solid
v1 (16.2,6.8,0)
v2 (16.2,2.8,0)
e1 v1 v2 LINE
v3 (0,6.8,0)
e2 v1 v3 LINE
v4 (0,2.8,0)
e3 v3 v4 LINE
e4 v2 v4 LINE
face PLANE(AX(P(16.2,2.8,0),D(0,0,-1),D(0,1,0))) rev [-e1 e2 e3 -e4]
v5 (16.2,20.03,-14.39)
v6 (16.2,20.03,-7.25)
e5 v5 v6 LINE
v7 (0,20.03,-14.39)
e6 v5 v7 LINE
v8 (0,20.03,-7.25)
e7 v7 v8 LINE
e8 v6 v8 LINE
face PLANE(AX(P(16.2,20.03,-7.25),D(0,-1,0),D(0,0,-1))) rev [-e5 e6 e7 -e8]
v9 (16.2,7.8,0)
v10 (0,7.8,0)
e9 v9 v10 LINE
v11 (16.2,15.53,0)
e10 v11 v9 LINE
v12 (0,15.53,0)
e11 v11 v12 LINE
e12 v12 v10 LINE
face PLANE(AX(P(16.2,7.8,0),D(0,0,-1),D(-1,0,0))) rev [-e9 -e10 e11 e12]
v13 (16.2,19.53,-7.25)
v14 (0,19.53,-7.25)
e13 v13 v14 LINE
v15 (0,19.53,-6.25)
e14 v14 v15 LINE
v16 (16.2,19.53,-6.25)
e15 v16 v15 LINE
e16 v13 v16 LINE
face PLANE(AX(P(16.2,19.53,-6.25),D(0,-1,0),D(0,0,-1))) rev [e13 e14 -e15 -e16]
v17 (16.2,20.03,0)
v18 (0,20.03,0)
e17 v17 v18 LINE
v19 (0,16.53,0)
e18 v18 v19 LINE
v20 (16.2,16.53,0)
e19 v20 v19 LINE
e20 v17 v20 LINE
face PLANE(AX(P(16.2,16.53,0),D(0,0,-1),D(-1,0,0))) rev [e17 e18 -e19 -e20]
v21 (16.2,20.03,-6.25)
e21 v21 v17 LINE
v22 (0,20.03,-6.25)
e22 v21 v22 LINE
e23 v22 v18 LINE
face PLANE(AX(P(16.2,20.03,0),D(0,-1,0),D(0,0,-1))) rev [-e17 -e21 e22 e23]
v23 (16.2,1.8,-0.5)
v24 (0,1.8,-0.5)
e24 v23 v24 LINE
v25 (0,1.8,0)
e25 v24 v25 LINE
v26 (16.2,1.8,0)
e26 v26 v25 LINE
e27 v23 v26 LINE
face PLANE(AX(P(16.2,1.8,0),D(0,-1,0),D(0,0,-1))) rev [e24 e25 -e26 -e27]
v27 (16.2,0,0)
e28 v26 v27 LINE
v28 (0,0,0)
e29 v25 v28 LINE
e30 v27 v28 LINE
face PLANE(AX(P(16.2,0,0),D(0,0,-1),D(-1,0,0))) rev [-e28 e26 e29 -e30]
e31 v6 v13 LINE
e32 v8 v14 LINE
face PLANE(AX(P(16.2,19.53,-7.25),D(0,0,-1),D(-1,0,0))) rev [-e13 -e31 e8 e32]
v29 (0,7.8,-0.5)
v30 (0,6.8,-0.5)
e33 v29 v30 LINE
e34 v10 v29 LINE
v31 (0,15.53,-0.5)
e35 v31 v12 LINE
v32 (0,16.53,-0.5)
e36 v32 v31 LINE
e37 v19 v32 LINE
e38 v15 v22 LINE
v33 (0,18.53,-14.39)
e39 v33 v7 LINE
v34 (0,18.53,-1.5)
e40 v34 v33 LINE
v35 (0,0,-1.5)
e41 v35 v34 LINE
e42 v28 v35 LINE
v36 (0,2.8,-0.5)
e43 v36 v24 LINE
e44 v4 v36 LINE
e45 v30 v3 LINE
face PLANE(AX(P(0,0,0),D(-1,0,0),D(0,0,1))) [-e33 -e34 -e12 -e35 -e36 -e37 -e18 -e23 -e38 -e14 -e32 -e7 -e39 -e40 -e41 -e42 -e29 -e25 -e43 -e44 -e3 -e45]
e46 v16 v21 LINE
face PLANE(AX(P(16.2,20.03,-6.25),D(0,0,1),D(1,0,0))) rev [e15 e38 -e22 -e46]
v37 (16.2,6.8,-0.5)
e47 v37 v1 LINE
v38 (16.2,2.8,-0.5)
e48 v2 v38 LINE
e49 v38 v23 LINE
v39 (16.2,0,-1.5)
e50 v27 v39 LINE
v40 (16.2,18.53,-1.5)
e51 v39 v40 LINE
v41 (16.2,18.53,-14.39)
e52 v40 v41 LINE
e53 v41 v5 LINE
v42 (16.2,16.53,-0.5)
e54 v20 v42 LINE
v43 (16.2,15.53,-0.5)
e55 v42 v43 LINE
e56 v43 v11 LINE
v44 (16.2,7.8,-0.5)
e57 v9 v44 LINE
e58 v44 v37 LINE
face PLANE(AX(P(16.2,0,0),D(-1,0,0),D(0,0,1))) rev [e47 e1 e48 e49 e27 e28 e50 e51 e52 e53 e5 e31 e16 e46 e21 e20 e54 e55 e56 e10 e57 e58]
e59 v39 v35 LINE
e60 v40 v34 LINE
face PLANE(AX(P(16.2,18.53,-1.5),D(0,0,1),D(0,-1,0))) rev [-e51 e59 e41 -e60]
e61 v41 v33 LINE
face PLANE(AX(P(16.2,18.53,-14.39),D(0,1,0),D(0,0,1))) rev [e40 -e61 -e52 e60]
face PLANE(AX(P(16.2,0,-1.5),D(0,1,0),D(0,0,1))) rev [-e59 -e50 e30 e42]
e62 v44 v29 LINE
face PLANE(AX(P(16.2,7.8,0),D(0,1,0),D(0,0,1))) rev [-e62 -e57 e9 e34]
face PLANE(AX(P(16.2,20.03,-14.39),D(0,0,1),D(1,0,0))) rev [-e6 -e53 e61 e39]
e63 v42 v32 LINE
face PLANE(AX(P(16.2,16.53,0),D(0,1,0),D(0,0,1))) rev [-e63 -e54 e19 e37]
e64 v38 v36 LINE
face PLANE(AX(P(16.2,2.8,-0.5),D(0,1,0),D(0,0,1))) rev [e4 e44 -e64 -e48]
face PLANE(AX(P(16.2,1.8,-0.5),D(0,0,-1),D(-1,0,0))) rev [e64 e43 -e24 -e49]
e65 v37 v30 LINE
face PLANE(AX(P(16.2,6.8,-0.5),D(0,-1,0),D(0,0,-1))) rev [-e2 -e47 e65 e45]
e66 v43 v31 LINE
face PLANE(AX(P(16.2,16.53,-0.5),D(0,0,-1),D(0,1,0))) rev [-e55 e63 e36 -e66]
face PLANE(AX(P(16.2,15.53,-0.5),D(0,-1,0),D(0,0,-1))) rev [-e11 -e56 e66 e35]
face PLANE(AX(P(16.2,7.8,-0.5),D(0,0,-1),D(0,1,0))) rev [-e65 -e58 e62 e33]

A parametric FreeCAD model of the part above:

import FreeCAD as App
import Part
import Sketcher
Q = App.Units.Quantity

doc = App.newDocument("Part")
body = doc.addObject("PartDesign::Body", "Body")

# Sketch on YZ plane
sketch1 = doc.addObject("Sketcher::SketchObject", "Sketch")
body.addObject(sketch1)
sketch1.AttachmentSupport = (doc.YZ_Plane, [""])
sketch1.MapMode = "FlatFace"
sketch1.addGeometry(Part.LineSegment(App.Vector(1.8, 0, 0), App.Vector(0, 0, 0)), False)
sketch1.addGeometry(Part.LineSegment(App.Vector(0, 0, 0), App.Vector(0, -1.5, 0)), False)
sketch1.addGeometry(Part.LineSegment(App.Vector(0, -1.5, 0), App.Vector(18.5, -1.5, 0)), False)
sketch1.addGeometry(Part.LineSegment(App.Vector(18.5, -1.5, 0), App.Vector(18.5, -14.4, 0)), False)
sketch1.addGeometry(Part.LineSegment(App.Vector(18.5, -14.4, 0), App.Vector(20, -14.4, 0)), False)
sketch1.addGeometry(Part.LineSegment(App.Vector(20, -14.4, 0), App.Vector(20, -7.2, 0)), False)
sketch1.addGeometry(Part.LineSegment(App.Vector(20, -7.2, 0), App.Vector(19.5, -7.2, 0)), False)
sketch1.addGeometry(Part.LineSegment(App.Vector(19.5, -7.2, 0), App.Vector(19.5, -6.2, 0)), False)
sketch1.addGeometry(Part.LineSegment(App.Vector(19.5, -6.2, 0), App.Vector(20, -6.2, 0)), False)
sketch1.addGeometry(Part.LineSegment(App.Vector(20, -6.2, 0), App.Vector(20, 0, 0)), False)
sketch1.addGeometry(Part.LineSegment(App.Vector(20, 0, 0), App.Vector(16.5, 0, 0)), False)
sketch1.addGeometry(Part.LineSegment(App.Vector(16.5, 0, 0), App.Vector(16.5, -0.5, 0)), False)
sketch1.addGeometry(Part.LineSegment(App.Vector(16.5, -0.5, 0), App.Vector(15.5, -0.5, 0)), False)
sketch1.addGeometry(Part.LineSegment(App.Vector(15.5, -0.5, 0), App.Vector(15.5, 0, 0)), False)
sketch1.addGeometry(Part.LineSegment(App.Vector(15.5, 0, 0), App.Vector(7.8, 0, 0)), False)
sketch1.addGeometry(Part.LineSegment(App.Vector(7.8, 0, 0), App.Vector(7.8, -0.5, 0)), False)
sketch1.addGeometry(Part.LineSegment(App.Vector(7.8, -0.5, 0), App.Vector(6.8, -0.5, 0)), False)
sketch1.addGeometry(Part.LineSegment(App.Vector(6.8, -0.5, 0), App.Vector(6.8, 0, 0)), False)
sketch1.addGeometry(Part.LineSegment(App.Vector(6.8, 0, 0), App.Vector(2.8, 0, 0)), False)
sketch1.addGeometry(Part.LineSegment(App.Vector(2.8, 0, 0), App.Vector(2.8, -0.5, 0)), False)
sketch1.addGeometry(Part.LineSegment(App.Vector(2.8, -0.5, 0), App.Vector(1.8, -0.5, 0)), False)
sketch1.addGeometry(Part.LineSegment(App.Vector(1.8, -0.5, 0), App.Vector(1.8, 0, 0)), False)
sketch1.addConstraint(Sketcher.Constraint("Coincident", 0, 2, 1, 1))
sketch1.addConstraint(Sketcher.Constraint("Coincident", 1, 2, 2, 1))
sketch1.addConstraint(Sketcher.Constraint("Coincident", 2, 2, 3, 1))
sketch1.addConstraint(Sketcher.Constraint("Coincident", 3, 2, 4, 1))
sketch1.addConstraint(Sketcher.Constraint("Coincident", 4, 2, 5, 1))
sketch1.addConstraint(Sketcher.Constraint("Coincident", 5, 2, 6, 1))
sketch1.addConstraint(Sketcher.Constraint("Coincident", 6, 2, 7, 1))
sketch1.addConstraint(Sketcher.Constraint("Coincident", 7, 2, 8, 1))
sketch1.addConstraint(Sketcher.Constraint("Coincident", 8, 2, 9, 1))
sketch1.addConstraint(Sketcher.Constraint("Coincident", 9, 2, 10, 1))
sketch1.addConstraint(Sketcher.Constraint("Coincident", 10, 2, 11, 1))
sketch1.addConstraint(Sketcher.Constraint("Coincident", 11, 2, 12, 1))
sketch1.addConstraint(Sketcher.Constraint("Coincident", 12, 2, 13, 1))
sketch1.addConstraint(Sketcher.Constraint("Coincident", 13, 2, 14, 1))
sketch1.addConstraint(Sketcher.Constraint("Coincident", 14, 2, 15, 1))
sketch1.addConstraint(Sketcher.Constraint("Coincident", 15, 2, 16, 1))
sketch1.addConstraint(Sketcher.Constraint("Coincident", 16, 2, 17, 1))
sketch1.addConstraint(Sketcher.Constraint("Coincident", 17, 2, 18, 1))
sketch1.addConstraint(Sketcher.Constraint("Coincident", 18, 2, 19, 1))
sketch1.addConstraint(Sketcher.Constraint("Coincident", 19, 2, 20, 1))
sketch1.addConstraint(Sketcher.Constraint("Coincident", 20, 2, 21, 1))
sketch1.addConstraint(Sketcher.Constraint("Coincident", 21, 2, 0, 1))
sketch1.addConstraint(Sketcher.Constraint("Horizontal", 0))
sketch1.addConstraint(Sketcher.Constraint("Vertical", 1))
sketch1.addConstraint(Sketcher.Constraint("Horizontal", 2))
sketch1.addConstraint(Sketcher.Constraint("Vertical", 3))
sketch1.addConstraint(Sketcher.Constraint("Horizontal", 4))
sketch1.addConstraint(Sketcher.Constraint("Vertical", 5))
sketch1.addConstraint(Sketcher.Constraint("Horizontal", 6))
sketch1.addConstraint(Sketcher.Constraint("Vertical", 7))
sketch1.addConstraint(Sketcher.Constraint("Horizontal", 8))
sketch1.addConstraint(Sketcher.Constraint("Vertical", 9))
sketch1.addConstraint(Sketcher.Constraint("Horizontal", 10))
sketch1.addConstraint(Sketcher.Constraint("Vertical", 11))
sketch1.addConstraint(Sketcher.Constraint("Horizontal", 12))
sketch1.addConstraint(Sketcher.Constraint("Vertical", 13))
sketch1.addConstraint(Sketcher.Constraint("Horizontal", 14))
sketch1.addConstraint(Sketcher.Constraint("Vertical", 15))
sketch1.addConstraint(Sketcher.Constraint("Horizontal", 16))
sketch1.addConstraint(Sketcher.Constraint("Vertical", 17))
sketch1.addConstraint(Sketcher.Constraint("Horizontal", 18))
sketch1.addConstraint(Sketcher.Constraint("Vertical", 19))
sketch1.addConstraint(Sketcher.Constraint("Horizontal", 20))
sketch1.addConstraint(Sketcher.Constraint("Vertical", 21))
sketch1.addConstraint(Sketcher.Constraint("Coincident", 0, 2, -1, 1))
sketch1.addConstraint(Sketcher.Constraint("PointOnObject", 9, 2, -1))
sketch1.addConstraint(Sketcher.Constraint("PointOnObject", 13, 2, -1))
sketch1.addConstraint(Sketcher.Constraint("PointOnObject", 17, 2, -1))
sketch1.addConstraint(Sketcher.Constraint("Horizontal", 12, 2, 15, 2))
sketch1.addConstraint(Sketcher.Constraint("Horizontal", 16, 2, 19, 2))
sketch1.addConstraint(Sketcher.Constraint("Vertical", 5, 2, 8, 2))
sketch1.addConstraint(Sketcher.Constraint("Equal", 12, 16))
sketch1.addConstraint(Sketcher.Constraint("Equal", 16, 20))
sketch1.addConstraint(Sketcher.Constraint("Equal", 4, 1))
sketch1.addConstraint(Sketcher.Constraint("Equal", 20, 7))
sketch1.addConstraint(Sketcher.Constraint("Equal", 8, 11))
sketch1.addConstraint(Sketcher.Constraint("DistanceX", 12, 2, 12, 1, Q("1 mm")))
sketch1.addConstraint(Sketcher.Constraint("DistanceX", 18, 2, 18, 1, Q("4 mm")))
sketch1.addConstraint(Sketcher.Constraint("DistanceX", 0, 2, 0, 1, Q("1.8 mm")))
sketch1.addConstraint(Sketcher.Constraint("DistanceX", 4, 1, 4, 2, Q("1.5 mm")))
sketch1.addConstraint(Sketcher.Constraint("DistanceX", 6, 2, 6, 1, Q("0.5 mm")))
sketch1.addConstraint(Sketcher.Constraint("DistanceX", 10, 2, 10, 1, Q("3.5 mm")))
sketch1.addConstraint(Sketcher.Constraint("DistanceX", 2, 1, 2, 2, Q("18.53 mm")))
sketch1.addConstraint(Sketcher.Constraint("DistanceY", 3, 2, 3, 1, Q("12.89 mm")))
sketch1.addConstraint(Sketcher.Constraint("DistanceY", 5, 1, 5, 2, Q("7.14 mm")))
pad1 = doc.addObject("PartDesign::Pad", "Pad")
body.addObject(pad1)
pad1.Profile = sketch1
pad1.Length = 16.2

doc.recompute()
